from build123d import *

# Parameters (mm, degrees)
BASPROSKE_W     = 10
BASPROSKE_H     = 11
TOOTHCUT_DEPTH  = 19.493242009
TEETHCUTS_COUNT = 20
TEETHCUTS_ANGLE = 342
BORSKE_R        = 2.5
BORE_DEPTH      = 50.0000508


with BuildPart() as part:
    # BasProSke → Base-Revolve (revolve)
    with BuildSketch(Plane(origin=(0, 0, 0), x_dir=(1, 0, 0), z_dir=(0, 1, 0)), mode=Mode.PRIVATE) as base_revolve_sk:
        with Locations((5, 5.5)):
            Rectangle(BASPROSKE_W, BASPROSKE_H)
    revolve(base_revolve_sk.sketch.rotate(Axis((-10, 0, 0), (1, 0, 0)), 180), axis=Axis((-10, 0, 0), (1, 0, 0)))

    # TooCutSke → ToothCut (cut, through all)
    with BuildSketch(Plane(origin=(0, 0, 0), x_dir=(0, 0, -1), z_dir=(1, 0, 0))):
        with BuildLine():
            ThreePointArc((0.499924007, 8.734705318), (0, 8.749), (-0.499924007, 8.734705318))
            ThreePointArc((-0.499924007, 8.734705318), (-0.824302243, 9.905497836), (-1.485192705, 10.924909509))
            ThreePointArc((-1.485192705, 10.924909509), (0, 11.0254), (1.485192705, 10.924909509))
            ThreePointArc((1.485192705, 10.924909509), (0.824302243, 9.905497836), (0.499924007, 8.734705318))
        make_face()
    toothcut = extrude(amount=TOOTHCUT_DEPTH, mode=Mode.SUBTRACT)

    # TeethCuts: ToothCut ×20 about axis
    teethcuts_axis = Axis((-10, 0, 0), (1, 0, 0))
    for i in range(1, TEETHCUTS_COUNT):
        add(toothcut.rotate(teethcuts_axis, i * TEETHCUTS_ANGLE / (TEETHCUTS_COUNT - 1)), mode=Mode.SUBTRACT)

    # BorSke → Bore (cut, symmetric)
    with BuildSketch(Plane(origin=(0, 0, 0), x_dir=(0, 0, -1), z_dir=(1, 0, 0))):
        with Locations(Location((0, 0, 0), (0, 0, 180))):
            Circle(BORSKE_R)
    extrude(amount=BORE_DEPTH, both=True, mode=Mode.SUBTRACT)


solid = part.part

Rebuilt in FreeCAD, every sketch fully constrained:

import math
import FreeCAD as App
import Part
import Sketcher

V = App.Vector


def add_polygon(sketch, points):
    """Adds a closed chain of lines whose ends are joined by coincident constraints."""
    first, n = sketch.GeometryCount, len(points)
    for a, b in zip(points, points[1:] + points[:1]):
        sketch.addGeometry(Part.LineSegment(App.Vector(*a, 0), App.Vector(*b, 0)), False)
    for i in range(n):
        sketch.addConstraint(Sketcher.Constraint("Coincident", first + i, 2, first + (i + 1) % n, 1))

doc = App.newDocument("Part")
body = doc.addObject("PartDesign::Body", "Body")

# Sketch on XZ plane
sketch1 = body.newObject("Sketcher::SketchObject", "Sketch")
sketch1.AttachmentSupport = (doc.getObject("XZ_Plane"), [""])
sketch1.MapMode = "FlatFace"
add_polygon(sketch1, [(0, -11), (0, 0), (10, 0), (10, -11)])  # lines 0-3
sketch1.addConstraint(Sketcher.Constraint("Vertical", 0))
sketch1.addConstraint(Sketcher.Constraint("Horizontal", 1))
sketch1.addConstraint(Sketcher.Constraint("Vertical", 2))
sketch1.addConstraint(Sketcher.Constraint("Horizontal", 3))
sketch1.addConstraint(Sketcher.Constraint("Coincident", 0, 2, -1, 1))
sketch1.addConstraint(Sketcher.Constraint("DistanceX", 1, 1, 1, 2, 10.0))
sketch1.addConstraint(Sketcher.Constraint("DistanceY", 0, 1, 0, 2, 11.0))
revolution = body.newObject("PartDesign::Revolution", "Revolution")
revolution.Profile = sketch1
revolution.ReferenceAxis = (sketch1, ["H_Axis"])
revolution.Angle = 360

# Sketch on YZ plane
sketch2 = body.newObject("Sketcher::SketchObject", "Sketch001")
sketch2.AttachmentSupport = (doc.getObject("YZ_Plane"), [""])
sketch2.MapMode = "FlatFace"
sketch2.addGeometry(Part.ArcOfCircle(Part.Circle(V(0, 0, 0), V(0, 0, 1), 8.7), math.radians(-3.28), math.radians(3.28)), False)
sketch2.addGeometry(Part.ArcOfCircle(Part.Circle(V(8.3, -4.5, 0), V(0, 0, 1), 4), math.radians(48), math.radians(83)), False)
sketch2.addGeometry(Part.ArcOfCircle(Part.Circle(V(0, 0, 0), V(0, 0, 1), 11), math.radians(-7.74), math.radians(7.74)), False)
sketch2.addGeometry(Part.ArcOfCircle(Part.Circle(V(8.3, 4.5, 0), V(0, 0, 1), 4), math.radians(-83), math.radians(-48)), False)
sketch2.addConstraint(Sketcher.Constraint("Coincident", 0, 1, 1, 2))
sketch2.addConstraint(Sketcher.Constraint("Coincident", 1, 1, 2, 1))
sketch2.addConstraint(Sketcher.Constraint("Coincident", 2, 2, 3, 2))
sketch2.addConstraint(Sketcher.Constraint("Coincident", 3, 1, 0, 2))
sketch2.addConstraint(Sketcher.Constraint("Coincident", 0, 3, -1, 1))
sketch2.addConstraint(Sketcher.Constraint("Coincident", 2, 3, -1, 1))
sketch2.addConstraint(Sketcher.Constraint("Equal", 1, 3))
sketch2.addConstraint(Sketcher.Constraint("Symmetric", 1, 3, 3, 3, -1))
sketch2.addConstraint(Sketcher.Constraint("Radius", 1, 4.0))
sketch2.addConstraint(Sketcher.Constraint("Radius", 0, 8.749))
sketch2.addConstraint(Sketcher.Constraint("Radius", 2, 11.0254))
sketch2.addConstraint(Sketcher.Constraint("DistanceY", 1, 3, -1, 1, 4.47219))
sketch2.addConstraint(Sketcher.Constraint("DistanceX", -1, 1, 1, 1, 10.92491))
pocket1 = body.newObject("PartDesign::Pocket", "Pocket")
pocket1.Profile = sketch2
pocket1.Type = "ThroughAll"
pocket1.Reversed = True
doc.recompute()

polarpattern = body.newObject("PartDesign::PolarPattern", "PolarPattern")
polarpattern.Originals = [pocket1]
polarpattern.Axis = (doc.getObject("X_Axis"), [""])
polarpattern.Angle = 360
polarpattern.Occurrences = 20
body.Tip = polarpattern

# Sketch on YZ plane
sketch3 = body.newObject("Sketcher::SketchObject", "Sketch002")
sketch3.AttachmentSupport = (doc.getObject("YZ_Plane"), [""])
sketch3.MapMode = "FlatFace"
sketch3.addGeometry(Part.Circle(V(0, 0, 0), V(0, 0, 1), 2.5), False)
sketch3.addConstraint(Sketcher.Constraint("Coincident", 0, 3, -1, 1))
sketch3.addConstraint(Sketcher.Constraint("Diameter", 0, 5.0))
pocket2 = body.newObject("PartDesign::Pocket", "Pocket001")
pocket2.Profile = sketch3
pocket2.Length = 100.000102
pocket2.Midplane = True

doc.recompute()
